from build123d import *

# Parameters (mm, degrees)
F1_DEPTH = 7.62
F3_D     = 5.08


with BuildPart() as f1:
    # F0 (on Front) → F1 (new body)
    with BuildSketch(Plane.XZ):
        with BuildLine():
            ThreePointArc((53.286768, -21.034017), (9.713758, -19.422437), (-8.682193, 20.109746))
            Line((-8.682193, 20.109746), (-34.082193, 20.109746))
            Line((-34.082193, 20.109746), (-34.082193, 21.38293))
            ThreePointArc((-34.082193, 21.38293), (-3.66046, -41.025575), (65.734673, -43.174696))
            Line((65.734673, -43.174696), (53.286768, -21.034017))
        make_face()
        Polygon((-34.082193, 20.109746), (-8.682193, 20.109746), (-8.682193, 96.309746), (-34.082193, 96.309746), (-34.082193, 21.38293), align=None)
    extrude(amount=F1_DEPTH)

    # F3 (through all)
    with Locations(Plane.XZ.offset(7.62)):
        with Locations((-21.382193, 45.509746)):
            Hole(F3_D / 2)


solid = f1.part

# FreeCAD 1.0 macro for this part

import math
import FreeCAD as App
import Part
import Sketcher

V = App.Vector
Q = App.Units.Quantity

doc = App.newDocument("Part")
params = doc.addObject("Spreadsheet::Sheet", "Params")
for row, (alias, value) in enumerate([
    ("sketch1_width", "1 in"),
    ("sketch1_height", "3 in"),
    ("sketch1_length", "1 in"),
    ("pad1_length", "0.3 in"),
    ("sketch2_diameter", "0.2 in"),
    ("hole_diameter", "0.2 in"),
], start=1):
    params.set(f"A{row}", alias)
    params.set(f"B{row}", "=" + value)
    params.setAlias(f"B{row}", alias)

body = doc.addObject("PartDesign::Body", "Body")

sketch1 = doc.addObject("Sketcher::SketchObject", "Sketch")
body.addObject(sketch1)
sketch1.AttachmentSupport = (doc.XZ_Plane, [""])
sketch1.MapMode = "FlatFace"
sketch1.addGeometry([
    Part.ArcOfCircle(Part.Circle(V(32.817066, 15.374771, 0), V(0, 0, 1), 41.768511), math.radians(173.490825), math.radians(299.345509)),
    Part.LineSegment(V(-8.682193, 20.109746, 0), V(-8.682193, 96.309746, 0)),
    Part.LineSegment(V(-8.682193, 96.309746, 0), V(-34.082193, 96.309746, 0)),
    Part.LineSegment(V(-34.082193, 96.309746, 0), V(-34.082193, 21.38293, 0)),
    Part.ArcOfCircle(Part.Circle(V(32.817066, 15.37477, 0), V(0, 0, 1), 67.168511), math.radians(174.868088), math.radians(299.34551)),
    Part.LineSegment(V(65.734673, -43.174696, 0), V(53.286768, -21.034017, 0)),
], False)
sketch1.addConstraint([
    Sketcher.Constraint("Coincident", 0, 1, 1, 1),
    Sketcher.Constraint("Coincident", 1, 2, 2, 1),
    Sketcher.Constraint("Coincident", 2, 2, 3, 1),
    Sketcher.Constraint("Coincident", 3, 2, 4, 1),
    Sketcher.Constraint("Coincident", 4, 2, 5, 1),
    Sketcher.Constraint("Coincident", 5, 2, 0, 2),
    Sketcher.Constraint("Vertical", 1),
    Sketcher.Constraint("Horizontal", 2),
    Sketcher.Constraint("Vertical", 3),
    Sketcher.Constraint("Coincident", 4, 3, 0, 3),
    Sketcher.Constraint("DistanceX", 2, 2, 2, 1, Q("1 in")),
    Sketcher.Constraint("DistanceY", 1, 1, 1, 2, Q("3 in")),
    Sketcher.Constraint("Distance", 5, Q("1 in")),
    Sketcher.Constraint("Radius", 0, Q("41.768511 mm")),
    Sketcher.Constraint("DistanceX", 4, 3, 5, 2, Q("20.469702 mm")),
    Sketcher.Constraint("DistanceY", 3, 2, 3, 1, Q("74.926816 mm")),
    Sketcher.Constraint("DistanceY", -1, 1, 0, 3, Q("15.374771 mm")),
    Sketcher.Constraint("DistanceX", -1, 1, 5, 2, Q("53.286768 mm")),
    Sketcher.Constraint("DistanceY", 4, 2, 0, 1, Q("63.284442 mm")),
])
sketch1.setExpression("Constraints[10]", "Params.sketch1_width")
sketch1.setExpression("Constraints[11]", "Params.sketch1_height")
sketch1.setExpression("Constraints[12]", "Params.sketch1_length")
pad1 = doc.addObject("PartDesign::Pad", "Pad")
body.addObject(pad1)
pad1.Profile = sketch1
pad1.setExpression("Length", "Params.pad1_length")

sketch2 = doc.addObject("Sketcher::SketchObject", "Sketch001")
body.addObject(sketch2)
sketch2.AttachmentSupport = (doc.XZ_Plane, [""])
sketch2.MapMode = "FlatFace"
sketch2.AttachmentOffset = App.Placement(V(0, 0, 0.3 * 25.4), App.Rotation())
sketch2.addGeometry(Part.Circle(V(-21.382193, 45.509746, 0), V(0, 0, 1), 2.54), False)
sketch2.addConstraint([
    Sketcher.Constraint("Diameter", 0, Q("0.2 in")),
    Sketcher.Constraint("DistanceX", 0, 3, -1, 1, Q("21.382193 mm")),
    Sketcher.Constraint("DistanceY", -1, 1, 0, 3, Q("45.509746 mm")),
])
sketch2.setExpression("Constraints[0]", "Params.sketch2_diameter")
doc.recompute()
hole = doc.addObject("PartDesign::Hole", "Hole")
body.addObject(hole)
hole.Profile = sketch2
hole.ThreadType = "None"
hole.setExpression("Diameter", "Params.hole_diameter")
hole.DepthType = "ThroughAll"

doc.recompute()
